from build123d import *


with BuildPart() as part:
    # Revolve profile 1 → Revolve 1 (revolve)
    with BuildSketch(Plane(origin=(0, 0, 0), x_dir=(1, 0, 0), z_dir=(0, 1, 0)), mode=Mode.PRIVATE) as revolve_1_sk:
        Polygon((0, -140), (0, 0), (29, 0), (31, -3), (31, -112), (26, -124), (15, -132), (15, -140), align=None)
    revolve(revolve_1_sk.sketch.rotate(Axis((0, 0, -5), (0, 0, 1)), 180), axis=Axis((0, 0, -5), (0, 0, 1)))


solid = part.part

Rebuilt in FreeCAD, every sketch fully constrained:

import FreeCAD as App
import Part
import Sketcher

V = App.Vector
Q = App.Units.Quantity

doc = App.newDocument("Part")
body = doc.addObject("PartDesign::Body", "Body")

# Sketch on XZ plane
sketch1 = body.newObject("Sketcher::SketchObject", "Sketch")
sketch1.AttachmentSupport = (doc.getObject("XZ_Plane"), [""])
sketch1.MapMode = "FlatFace"
sketch1.addGeometry([
    Part.LineSegment(V(0, 0, 0), V(0, 140, 0)),  # 0
    Part.LineSegment(V(0, 140, 0), V(15, 140, 0)),  # 1
    Part.LineSegment(V(15, 140, 0), V(15, 132, 0)),  # 2
    Part.LineSegment(V(15, 132, 0), V(26, 124, 0)),  # 3
    Part.LineSegment(V(26, 124, 0), V(31, 112, 0)),  # 4
    Part.LineSegment(V(31, 112, 0), V(31, 3, 0)),  # 5
    Part.LineSegment(V(31, 3, 0), V(29, 0, 0)),  # 6
    Part.LineSegment(V(29, 0, 0), V(0, 0, 0)),  # 7
], False)
sketch1.addConstraint([
    Sketcher.Constraint("Coincident", 0, 2, 1, 1),
    Sketcher.Constraint("Coincident", 1, 2, 2, 1),
    Sketcher.Constraint("Coincident", 2, 2, 3, 1),
    Sketcher.Constraint("Coincident", 3, 2, 4, 1),
    Sketcher.Constraint("Coincident", 4, 2, 5, 1),
    Sketcher.Constraint("Coincident", 5, 2, 6, 1),
    Sketcher.Constraint("Coincident", 6, 2, 7, 1),
    Sketcher.Constraint("Coincident", 7, 2, 0, 1),
    Sketcher.Constraint("Vertical", 0),
    Sketcher.Constraint("Horizontal", 1),
    Sketcher.Constraint("Vertical", 2),
    Sketcher.Constraint("Vertical", 5),
    Sketcher.Constraint("Horizontal", 7),
    Sketcher.Constraint("Coincident", 7, 2, -1, 1),
    Sketcher.Constraint("DistanceX", 1, 1, 1, 2, Q("15 mm")),
    Sketcher.Constraint("DistanceX", 7, 2, 7, 1, Q("29 mm")),
    Sketcher.Constraint("DistanceY", 0, 1, 0, 2, Q("140 mm")),
    Sketcher.Constraint("DistanceY", 2, 2, 2, 1, Q("8 mm")),
    Sketcher.Constraint("DistanceY", 5, 2, 5, 1, Q("109 mm")),
    Sketcher.Constraint("Distance", 4, Q("13 mm")),
    Sketcher.Constraint("DistanceX", -1, 1, 3, 2, Q("26 mm")),
    Sketcher.Constraint("DistanceY", -1, 1, 3, 2, Q("124 mm")),
    Sketcher.Constraint("DistanceX", -1, 1, 4, 2, Q("31 mm")),
])
revolution = body.newObject("PartDesign::Revolution", "Revolution")
revolution.Profile = sketch1
revolution.ReferenceAxis = (sketch1, ["V_Axis"])
revolution.Angle = 360

doc.recompute()
